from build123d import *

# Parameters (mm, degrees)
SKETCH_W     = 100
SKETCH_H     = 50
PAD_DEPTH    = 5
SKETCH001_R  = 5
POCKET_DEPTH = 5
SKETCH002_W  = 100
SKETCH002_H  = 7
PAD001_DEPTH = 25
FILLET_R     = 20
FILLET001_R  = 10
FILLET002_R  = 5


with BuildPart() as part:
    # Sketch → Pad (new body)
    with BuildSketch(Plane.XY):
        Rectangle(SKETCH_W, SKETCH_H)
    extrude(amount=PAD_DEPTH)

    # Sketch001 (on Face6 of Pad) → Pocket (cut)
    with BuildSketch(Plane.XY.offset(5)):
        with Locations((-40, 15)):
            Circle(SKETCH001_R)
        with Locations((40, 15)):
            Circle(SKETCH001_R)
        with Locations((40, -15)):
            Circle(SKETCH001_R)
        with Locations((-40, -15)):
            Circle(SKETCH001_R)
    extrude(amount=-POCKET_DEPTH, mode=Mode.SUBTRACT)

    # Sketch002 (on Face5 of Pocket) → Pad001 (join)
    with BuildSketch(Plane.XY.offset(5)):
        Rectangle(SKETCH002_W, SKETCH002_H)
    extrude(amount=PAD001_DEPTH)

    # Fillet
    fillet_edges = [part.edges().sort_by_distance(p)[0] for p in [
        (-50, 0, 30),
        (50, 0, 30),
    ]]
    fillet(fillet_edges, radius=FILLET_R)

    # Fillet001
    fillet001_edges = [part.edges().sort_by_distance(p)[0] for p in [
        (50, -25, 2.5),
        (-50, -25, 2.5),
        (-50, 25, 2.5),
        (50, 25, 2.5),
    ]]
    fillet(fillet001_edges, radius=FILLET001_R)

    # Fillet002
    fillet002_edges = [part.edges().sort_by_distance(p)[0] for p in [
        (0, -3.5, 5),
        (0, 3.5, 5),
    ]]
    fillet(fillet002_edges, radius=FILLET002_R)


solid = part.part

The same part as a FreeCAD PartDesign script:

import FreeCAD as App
import Part
import Sketcher
from FreeCAD import Vector


def edges_at(feature, points):
    """Names of the edges that pass closest to the given points."""
    edges = feature.Shape.Edges
    near = lambda p: min(range(len(edges)), key=lambda i: edges[i].distToShape(Part.Vertex(*p))[0])
    return sorted({f"Edge{near(p) + 1}" for p in points})

doc = App.newDocument("Part")
body = doc.addObject("PartDesign::Body", "Body")

sketch1 = body.newObject("Sketcher::SketchObject", "Sketch")
sketch1.AttachmentSupport = (doc.getObject("XY_Plane"), [""])
sketch1.MapMode = "FlatFace"
sketch1.addGeometry([
    Part.LineSegment(Vector(-50, 25, 0), Vector(-50, -25, 0)),
    Part.LineSegment(Vector(-50, -25, 0), Vector(50, -25, 0)),
    Part.LineSegment(Vector(50, -25, 0), Vector(50, 25, 0)),
    Part.LineSegment(Vector(50, 25, 0), Vector(-50, 25, 0)),
], False)
sketch1.addConstraint([
    Sketcher.Constraint("Coincident", 0, 2, 1, 1),
    Sketcher.Constraint("Coincident", 1, 2, 2, 1),
    Sketcher.Constraint("Coincident", 2, 2, 3, 1),
    Sketcher.Constraint("Coincident", 3, 2, 0, 1),
    Sketcher.Constraint("Vertical", 0),
    Sketcher.Constraint("Horizontal", 1),
    Sketcher.Constraint("Vertical", 2),
    Sketcher.Constraint("Horizontal", 3),
    Sketcher.Constraint("Symmetric", 0, 2, 2, 2, -1, 1),
    Sketcher.Constraint("DistanceX", 1, 1, 1, 2, 100.0),
    Sketcher.Constraint("DistanceY", 0, 2, 0, 1, 50.0),
])
pad1 = body.newObject("PartDesign::Pad", "Pad")
pad1.Profile = sketch1
pad1.Length = 5

sketch2 = body.newObject("Sketcher::SketchObject", "Sketch001")
sketch2.AttachmentSupport = (doc.getObject("XY_Plane"), [""])
sketch2.MapMode = "FlatFace"
sketch2.AttachmentOffset = App.Placement(Vector(0, 0, 5), App.Rotation())
sketch2.addGeometry([
    Part.Circle(Vector(-40, 15, 0), Vector(0, 0, 1), 5),
    Part.Circle(Vector(40, 15, 0), Vector(0, 0, 1), 5),
    Part.Circle(Vector(40, -15, 0), Vector(0, 0, 1), 5),
    Part.Circle(Vector(-40, -15, 0), Vector(0, 0, 1), 5),
], False)
sketch2.addConstraint([
    Sketcher.Constraint("Equal", 0, 1),
    Sketcher.Constraint("Equal", 1, 2),
    Sketcher.Constraint("Equal", 2, 3),
    Sketcher.Constraint("Symmetric", 0, 3, 2, 3, -1, 1),
    Sketcher.Constraint("Symmetric", 1, 3, 3, 3, -1, 1),
    Sketcher.Constraint("Symmetric", 0, 3, 1, 3, -2),
    Sketcher.Constraint("Diameter", 0, 10.0),
    Sketcher.Constraint("DistanceX", 0, 3, -1, 1, 40.0),
    Sketcher.Constraint("DistanceY", -1, 1, 0, 3, 15.0),
])
pocket1 = body.newObject("PartDesign::Pocket", "Pocket")
pocket1.Profile = sketch2
pocket1.Length = 5

sketch3 = body.newObject("Sketcher::SketchObject", "Sketch002")
sketch3.AttachmentSupport = (doc.getObject("XY_Plane"), [""])
sketch3.MapMode = "FlatFace"
sketch3.AttachmentOffset = App.Placement(Vector(0, 0, 5), App.Rotation())
sketch3.addGeometry([
    Part.LineSegment(Vector(-50, 4, 0), Vector(-50, -4, 0)),
    Part.LineSegment(Vector(-50, -4, 0), Vector(50, -4, 0)),
    Part.LineSegment(Vector(50, -4, 0), Vector(50, 4, 0)),
    Part.LineSegment(Vector(50, 4, 0), Vector(-50, 4, 0)),
], False)
sketch3.addConstraint([
    Sketcher.Constraint("Coincident", 0, 2, 1, 1),
    Sketcher.Constraint("Coincident", 1, 2, 2, 1),
    Sketcher.Constraint("Coincident", 2, 2, 3, 1),
    Sketcher.Constraint("Coincident", 3, 2, 0, 1),
    Sketcher.Constraint("Vertical", 0),
    Sketcher.Constraint("Horizontal", 1),
    Sketcher.Constraint("Vertical", 2),
    Sketcher.Constraint("Horizontal", 3),
    Sketcher.Constraint("Symmetric", 0, 2, 2, 2, -1, 1),
    Sketcher.Constraint("DistanceX", 1, 1, 1, 2, 100.0),
    Sketcher.Constraint("DistanceY", 0, 2, 0, 1, 7.0),
])
pad2 = body.newObject("PartDesign::Pad", "Pad001")
pad2.Profile = sketch3
pad2.Length = 25
doc.recompute()

fillet = body.newObject("PartDesign::Fillet", "Fillet")
fillet.Base = (pad2, edges_at(pad2, [(-50, 0, 30), (50, 0, 30)]))
fillet.Radius = 20
doc.recompute()

fillet2 = body.newObject("PartDesign::Fillet", "Fillet001")
fillet2.Base = (fillet, edges_at(fillet, [
    (50, -25, 2.5),
    (-50, -25, 2.5),
    (-50, 25, 2.5),
    (50, 25, 2.5),
]))
fillet2.Radius = 10
doc.recompute()

fillet3 = body.newObject("PartDesign::Fillet", "Fillet002")
fillet3.Base = (fillet2, edges_at(fillet2, [(0, -3.5, 5), (0, 3.5, 5)]))
fillet3.Radius = 5

doc.recompute()
